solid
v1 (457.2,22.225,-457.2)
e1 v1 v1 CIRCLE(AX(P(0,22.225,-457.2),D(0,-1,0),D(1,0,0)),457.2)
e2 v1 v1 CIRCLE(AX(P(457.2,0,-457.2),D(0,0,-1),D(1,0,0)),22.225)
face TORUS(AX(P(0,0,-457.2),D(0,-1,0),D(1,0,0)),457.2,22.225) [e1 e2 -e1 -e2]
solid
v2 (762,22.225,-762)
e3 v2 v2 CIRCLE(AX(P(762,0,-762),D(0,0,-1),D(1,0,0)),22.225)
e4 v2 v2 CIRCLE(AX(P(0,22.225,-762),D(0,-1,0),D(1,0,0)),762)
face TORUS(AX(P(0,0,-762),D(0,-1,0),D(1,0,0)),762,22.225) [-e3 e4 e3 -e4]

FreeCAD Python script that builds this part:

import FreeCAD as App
import Part
import Sketcher

V = App.Vector
Q = App.Units.Quantity

doc = App.newDocument("Part")
body = doc.addObject("PartDesign::Body", "Body")

# Sketch on YZ plane
sketch1 = body.newObject("Sketcher::SketchObject", "Sketch")
sketch1.AttachmentSupport = (doc.getObject("YZ_Plane"), [""])
sketch1.MapMode = "FlatFace"
sketch1.addGeometry(Part.Circle(V(0, 0, 0), V(0, 0, 1), 22.225), False)
sketch1.addConstraint([
    Sketcher.Constraint("Coincident", 0, 3, -1, 1),
    Sketcher.Constraint("Diameter", 0, Q("1.75 in")),
])

# Sketch on XZ plane
sketch2 = body.newObject("Sketcher::SketchObject", "Sketch001")
sketch2.AttachmentSupport = (doc.getObject("XZ_Plane"), [""])
sketch2.MapMode = "FlatFace"
sketch2.addGeometry(Part.Circle(V(0, -762, 0), V(0, 0, 1), 762), False)
sketch2.addConstraint([
    Sketcher.Constraint("PointOnObject", 0, 3, -2),
    Sketcher.Constraint("Diameter", 0, Q("60 in")),
    Sketcher.Constraint("DistanceY", 0, 3, -1, 1, Q("30 in")),
])
doc.recompute()

additivepipe = body.newObject("PartDesign::AdditivePipe", "AdditivePipe")
additivepipe.Profile = sketch1
additivepipe.Spine = (sketch2, ["Edge1"])
body2 = doc.addObject("PartDesign::Body", "Body001")

# Sketch on YZ plane
sketch3 = body2.newObject("Sketcher::SketchObject", "Sketch002")
sketch3.AttachmentSupport = (doc.getObject("YZ_Plane001"), [""])
sketch3.MapMode = "FlatFace"
sketch3.addGeometry(Part.Circle(V(0, 0, 0), V(0, 0, 1), 22.225), False)
sketch3.addConstraint([
    Sketcher.Constraint("Coincident", 0, 3, -1, 1),
    Sketcher.Constraint("Diameter", 0, Q("1.75 in")),
])

# Sketch on XZ plane
sketch4 = body2.newObject("Sketcher::SketchObject", "Sketch003")
sketch4.AttachmentSupport = (doc.getObject("XZ_Plane001"), [""])
sketch4.MapMode = "FlatFace"
sketch4.addGeometry(Part.Circle(V(0, -457.2, 0), V(0, 0, 1), 457.2), False)
sketch4.addConstraint([
    Sketcher.Constraint("PointOnObject", 0, 3, -2),
    Sketcher.Constraint("Diameter", 0, Q("36 in")),
    Sketcher.Constraint("DistanceY", 0, 3, -1, 1, Q("18 in")),
])
doc.recompute()

additivepipe2 = body2.newObject("PartDesign::AdditivePipe", "AdditivePipe001")
additivepipe2.Profile = sketch3
additivepipe2.Spine = (sketch4, ["Edge1"])

doc.recompute()
